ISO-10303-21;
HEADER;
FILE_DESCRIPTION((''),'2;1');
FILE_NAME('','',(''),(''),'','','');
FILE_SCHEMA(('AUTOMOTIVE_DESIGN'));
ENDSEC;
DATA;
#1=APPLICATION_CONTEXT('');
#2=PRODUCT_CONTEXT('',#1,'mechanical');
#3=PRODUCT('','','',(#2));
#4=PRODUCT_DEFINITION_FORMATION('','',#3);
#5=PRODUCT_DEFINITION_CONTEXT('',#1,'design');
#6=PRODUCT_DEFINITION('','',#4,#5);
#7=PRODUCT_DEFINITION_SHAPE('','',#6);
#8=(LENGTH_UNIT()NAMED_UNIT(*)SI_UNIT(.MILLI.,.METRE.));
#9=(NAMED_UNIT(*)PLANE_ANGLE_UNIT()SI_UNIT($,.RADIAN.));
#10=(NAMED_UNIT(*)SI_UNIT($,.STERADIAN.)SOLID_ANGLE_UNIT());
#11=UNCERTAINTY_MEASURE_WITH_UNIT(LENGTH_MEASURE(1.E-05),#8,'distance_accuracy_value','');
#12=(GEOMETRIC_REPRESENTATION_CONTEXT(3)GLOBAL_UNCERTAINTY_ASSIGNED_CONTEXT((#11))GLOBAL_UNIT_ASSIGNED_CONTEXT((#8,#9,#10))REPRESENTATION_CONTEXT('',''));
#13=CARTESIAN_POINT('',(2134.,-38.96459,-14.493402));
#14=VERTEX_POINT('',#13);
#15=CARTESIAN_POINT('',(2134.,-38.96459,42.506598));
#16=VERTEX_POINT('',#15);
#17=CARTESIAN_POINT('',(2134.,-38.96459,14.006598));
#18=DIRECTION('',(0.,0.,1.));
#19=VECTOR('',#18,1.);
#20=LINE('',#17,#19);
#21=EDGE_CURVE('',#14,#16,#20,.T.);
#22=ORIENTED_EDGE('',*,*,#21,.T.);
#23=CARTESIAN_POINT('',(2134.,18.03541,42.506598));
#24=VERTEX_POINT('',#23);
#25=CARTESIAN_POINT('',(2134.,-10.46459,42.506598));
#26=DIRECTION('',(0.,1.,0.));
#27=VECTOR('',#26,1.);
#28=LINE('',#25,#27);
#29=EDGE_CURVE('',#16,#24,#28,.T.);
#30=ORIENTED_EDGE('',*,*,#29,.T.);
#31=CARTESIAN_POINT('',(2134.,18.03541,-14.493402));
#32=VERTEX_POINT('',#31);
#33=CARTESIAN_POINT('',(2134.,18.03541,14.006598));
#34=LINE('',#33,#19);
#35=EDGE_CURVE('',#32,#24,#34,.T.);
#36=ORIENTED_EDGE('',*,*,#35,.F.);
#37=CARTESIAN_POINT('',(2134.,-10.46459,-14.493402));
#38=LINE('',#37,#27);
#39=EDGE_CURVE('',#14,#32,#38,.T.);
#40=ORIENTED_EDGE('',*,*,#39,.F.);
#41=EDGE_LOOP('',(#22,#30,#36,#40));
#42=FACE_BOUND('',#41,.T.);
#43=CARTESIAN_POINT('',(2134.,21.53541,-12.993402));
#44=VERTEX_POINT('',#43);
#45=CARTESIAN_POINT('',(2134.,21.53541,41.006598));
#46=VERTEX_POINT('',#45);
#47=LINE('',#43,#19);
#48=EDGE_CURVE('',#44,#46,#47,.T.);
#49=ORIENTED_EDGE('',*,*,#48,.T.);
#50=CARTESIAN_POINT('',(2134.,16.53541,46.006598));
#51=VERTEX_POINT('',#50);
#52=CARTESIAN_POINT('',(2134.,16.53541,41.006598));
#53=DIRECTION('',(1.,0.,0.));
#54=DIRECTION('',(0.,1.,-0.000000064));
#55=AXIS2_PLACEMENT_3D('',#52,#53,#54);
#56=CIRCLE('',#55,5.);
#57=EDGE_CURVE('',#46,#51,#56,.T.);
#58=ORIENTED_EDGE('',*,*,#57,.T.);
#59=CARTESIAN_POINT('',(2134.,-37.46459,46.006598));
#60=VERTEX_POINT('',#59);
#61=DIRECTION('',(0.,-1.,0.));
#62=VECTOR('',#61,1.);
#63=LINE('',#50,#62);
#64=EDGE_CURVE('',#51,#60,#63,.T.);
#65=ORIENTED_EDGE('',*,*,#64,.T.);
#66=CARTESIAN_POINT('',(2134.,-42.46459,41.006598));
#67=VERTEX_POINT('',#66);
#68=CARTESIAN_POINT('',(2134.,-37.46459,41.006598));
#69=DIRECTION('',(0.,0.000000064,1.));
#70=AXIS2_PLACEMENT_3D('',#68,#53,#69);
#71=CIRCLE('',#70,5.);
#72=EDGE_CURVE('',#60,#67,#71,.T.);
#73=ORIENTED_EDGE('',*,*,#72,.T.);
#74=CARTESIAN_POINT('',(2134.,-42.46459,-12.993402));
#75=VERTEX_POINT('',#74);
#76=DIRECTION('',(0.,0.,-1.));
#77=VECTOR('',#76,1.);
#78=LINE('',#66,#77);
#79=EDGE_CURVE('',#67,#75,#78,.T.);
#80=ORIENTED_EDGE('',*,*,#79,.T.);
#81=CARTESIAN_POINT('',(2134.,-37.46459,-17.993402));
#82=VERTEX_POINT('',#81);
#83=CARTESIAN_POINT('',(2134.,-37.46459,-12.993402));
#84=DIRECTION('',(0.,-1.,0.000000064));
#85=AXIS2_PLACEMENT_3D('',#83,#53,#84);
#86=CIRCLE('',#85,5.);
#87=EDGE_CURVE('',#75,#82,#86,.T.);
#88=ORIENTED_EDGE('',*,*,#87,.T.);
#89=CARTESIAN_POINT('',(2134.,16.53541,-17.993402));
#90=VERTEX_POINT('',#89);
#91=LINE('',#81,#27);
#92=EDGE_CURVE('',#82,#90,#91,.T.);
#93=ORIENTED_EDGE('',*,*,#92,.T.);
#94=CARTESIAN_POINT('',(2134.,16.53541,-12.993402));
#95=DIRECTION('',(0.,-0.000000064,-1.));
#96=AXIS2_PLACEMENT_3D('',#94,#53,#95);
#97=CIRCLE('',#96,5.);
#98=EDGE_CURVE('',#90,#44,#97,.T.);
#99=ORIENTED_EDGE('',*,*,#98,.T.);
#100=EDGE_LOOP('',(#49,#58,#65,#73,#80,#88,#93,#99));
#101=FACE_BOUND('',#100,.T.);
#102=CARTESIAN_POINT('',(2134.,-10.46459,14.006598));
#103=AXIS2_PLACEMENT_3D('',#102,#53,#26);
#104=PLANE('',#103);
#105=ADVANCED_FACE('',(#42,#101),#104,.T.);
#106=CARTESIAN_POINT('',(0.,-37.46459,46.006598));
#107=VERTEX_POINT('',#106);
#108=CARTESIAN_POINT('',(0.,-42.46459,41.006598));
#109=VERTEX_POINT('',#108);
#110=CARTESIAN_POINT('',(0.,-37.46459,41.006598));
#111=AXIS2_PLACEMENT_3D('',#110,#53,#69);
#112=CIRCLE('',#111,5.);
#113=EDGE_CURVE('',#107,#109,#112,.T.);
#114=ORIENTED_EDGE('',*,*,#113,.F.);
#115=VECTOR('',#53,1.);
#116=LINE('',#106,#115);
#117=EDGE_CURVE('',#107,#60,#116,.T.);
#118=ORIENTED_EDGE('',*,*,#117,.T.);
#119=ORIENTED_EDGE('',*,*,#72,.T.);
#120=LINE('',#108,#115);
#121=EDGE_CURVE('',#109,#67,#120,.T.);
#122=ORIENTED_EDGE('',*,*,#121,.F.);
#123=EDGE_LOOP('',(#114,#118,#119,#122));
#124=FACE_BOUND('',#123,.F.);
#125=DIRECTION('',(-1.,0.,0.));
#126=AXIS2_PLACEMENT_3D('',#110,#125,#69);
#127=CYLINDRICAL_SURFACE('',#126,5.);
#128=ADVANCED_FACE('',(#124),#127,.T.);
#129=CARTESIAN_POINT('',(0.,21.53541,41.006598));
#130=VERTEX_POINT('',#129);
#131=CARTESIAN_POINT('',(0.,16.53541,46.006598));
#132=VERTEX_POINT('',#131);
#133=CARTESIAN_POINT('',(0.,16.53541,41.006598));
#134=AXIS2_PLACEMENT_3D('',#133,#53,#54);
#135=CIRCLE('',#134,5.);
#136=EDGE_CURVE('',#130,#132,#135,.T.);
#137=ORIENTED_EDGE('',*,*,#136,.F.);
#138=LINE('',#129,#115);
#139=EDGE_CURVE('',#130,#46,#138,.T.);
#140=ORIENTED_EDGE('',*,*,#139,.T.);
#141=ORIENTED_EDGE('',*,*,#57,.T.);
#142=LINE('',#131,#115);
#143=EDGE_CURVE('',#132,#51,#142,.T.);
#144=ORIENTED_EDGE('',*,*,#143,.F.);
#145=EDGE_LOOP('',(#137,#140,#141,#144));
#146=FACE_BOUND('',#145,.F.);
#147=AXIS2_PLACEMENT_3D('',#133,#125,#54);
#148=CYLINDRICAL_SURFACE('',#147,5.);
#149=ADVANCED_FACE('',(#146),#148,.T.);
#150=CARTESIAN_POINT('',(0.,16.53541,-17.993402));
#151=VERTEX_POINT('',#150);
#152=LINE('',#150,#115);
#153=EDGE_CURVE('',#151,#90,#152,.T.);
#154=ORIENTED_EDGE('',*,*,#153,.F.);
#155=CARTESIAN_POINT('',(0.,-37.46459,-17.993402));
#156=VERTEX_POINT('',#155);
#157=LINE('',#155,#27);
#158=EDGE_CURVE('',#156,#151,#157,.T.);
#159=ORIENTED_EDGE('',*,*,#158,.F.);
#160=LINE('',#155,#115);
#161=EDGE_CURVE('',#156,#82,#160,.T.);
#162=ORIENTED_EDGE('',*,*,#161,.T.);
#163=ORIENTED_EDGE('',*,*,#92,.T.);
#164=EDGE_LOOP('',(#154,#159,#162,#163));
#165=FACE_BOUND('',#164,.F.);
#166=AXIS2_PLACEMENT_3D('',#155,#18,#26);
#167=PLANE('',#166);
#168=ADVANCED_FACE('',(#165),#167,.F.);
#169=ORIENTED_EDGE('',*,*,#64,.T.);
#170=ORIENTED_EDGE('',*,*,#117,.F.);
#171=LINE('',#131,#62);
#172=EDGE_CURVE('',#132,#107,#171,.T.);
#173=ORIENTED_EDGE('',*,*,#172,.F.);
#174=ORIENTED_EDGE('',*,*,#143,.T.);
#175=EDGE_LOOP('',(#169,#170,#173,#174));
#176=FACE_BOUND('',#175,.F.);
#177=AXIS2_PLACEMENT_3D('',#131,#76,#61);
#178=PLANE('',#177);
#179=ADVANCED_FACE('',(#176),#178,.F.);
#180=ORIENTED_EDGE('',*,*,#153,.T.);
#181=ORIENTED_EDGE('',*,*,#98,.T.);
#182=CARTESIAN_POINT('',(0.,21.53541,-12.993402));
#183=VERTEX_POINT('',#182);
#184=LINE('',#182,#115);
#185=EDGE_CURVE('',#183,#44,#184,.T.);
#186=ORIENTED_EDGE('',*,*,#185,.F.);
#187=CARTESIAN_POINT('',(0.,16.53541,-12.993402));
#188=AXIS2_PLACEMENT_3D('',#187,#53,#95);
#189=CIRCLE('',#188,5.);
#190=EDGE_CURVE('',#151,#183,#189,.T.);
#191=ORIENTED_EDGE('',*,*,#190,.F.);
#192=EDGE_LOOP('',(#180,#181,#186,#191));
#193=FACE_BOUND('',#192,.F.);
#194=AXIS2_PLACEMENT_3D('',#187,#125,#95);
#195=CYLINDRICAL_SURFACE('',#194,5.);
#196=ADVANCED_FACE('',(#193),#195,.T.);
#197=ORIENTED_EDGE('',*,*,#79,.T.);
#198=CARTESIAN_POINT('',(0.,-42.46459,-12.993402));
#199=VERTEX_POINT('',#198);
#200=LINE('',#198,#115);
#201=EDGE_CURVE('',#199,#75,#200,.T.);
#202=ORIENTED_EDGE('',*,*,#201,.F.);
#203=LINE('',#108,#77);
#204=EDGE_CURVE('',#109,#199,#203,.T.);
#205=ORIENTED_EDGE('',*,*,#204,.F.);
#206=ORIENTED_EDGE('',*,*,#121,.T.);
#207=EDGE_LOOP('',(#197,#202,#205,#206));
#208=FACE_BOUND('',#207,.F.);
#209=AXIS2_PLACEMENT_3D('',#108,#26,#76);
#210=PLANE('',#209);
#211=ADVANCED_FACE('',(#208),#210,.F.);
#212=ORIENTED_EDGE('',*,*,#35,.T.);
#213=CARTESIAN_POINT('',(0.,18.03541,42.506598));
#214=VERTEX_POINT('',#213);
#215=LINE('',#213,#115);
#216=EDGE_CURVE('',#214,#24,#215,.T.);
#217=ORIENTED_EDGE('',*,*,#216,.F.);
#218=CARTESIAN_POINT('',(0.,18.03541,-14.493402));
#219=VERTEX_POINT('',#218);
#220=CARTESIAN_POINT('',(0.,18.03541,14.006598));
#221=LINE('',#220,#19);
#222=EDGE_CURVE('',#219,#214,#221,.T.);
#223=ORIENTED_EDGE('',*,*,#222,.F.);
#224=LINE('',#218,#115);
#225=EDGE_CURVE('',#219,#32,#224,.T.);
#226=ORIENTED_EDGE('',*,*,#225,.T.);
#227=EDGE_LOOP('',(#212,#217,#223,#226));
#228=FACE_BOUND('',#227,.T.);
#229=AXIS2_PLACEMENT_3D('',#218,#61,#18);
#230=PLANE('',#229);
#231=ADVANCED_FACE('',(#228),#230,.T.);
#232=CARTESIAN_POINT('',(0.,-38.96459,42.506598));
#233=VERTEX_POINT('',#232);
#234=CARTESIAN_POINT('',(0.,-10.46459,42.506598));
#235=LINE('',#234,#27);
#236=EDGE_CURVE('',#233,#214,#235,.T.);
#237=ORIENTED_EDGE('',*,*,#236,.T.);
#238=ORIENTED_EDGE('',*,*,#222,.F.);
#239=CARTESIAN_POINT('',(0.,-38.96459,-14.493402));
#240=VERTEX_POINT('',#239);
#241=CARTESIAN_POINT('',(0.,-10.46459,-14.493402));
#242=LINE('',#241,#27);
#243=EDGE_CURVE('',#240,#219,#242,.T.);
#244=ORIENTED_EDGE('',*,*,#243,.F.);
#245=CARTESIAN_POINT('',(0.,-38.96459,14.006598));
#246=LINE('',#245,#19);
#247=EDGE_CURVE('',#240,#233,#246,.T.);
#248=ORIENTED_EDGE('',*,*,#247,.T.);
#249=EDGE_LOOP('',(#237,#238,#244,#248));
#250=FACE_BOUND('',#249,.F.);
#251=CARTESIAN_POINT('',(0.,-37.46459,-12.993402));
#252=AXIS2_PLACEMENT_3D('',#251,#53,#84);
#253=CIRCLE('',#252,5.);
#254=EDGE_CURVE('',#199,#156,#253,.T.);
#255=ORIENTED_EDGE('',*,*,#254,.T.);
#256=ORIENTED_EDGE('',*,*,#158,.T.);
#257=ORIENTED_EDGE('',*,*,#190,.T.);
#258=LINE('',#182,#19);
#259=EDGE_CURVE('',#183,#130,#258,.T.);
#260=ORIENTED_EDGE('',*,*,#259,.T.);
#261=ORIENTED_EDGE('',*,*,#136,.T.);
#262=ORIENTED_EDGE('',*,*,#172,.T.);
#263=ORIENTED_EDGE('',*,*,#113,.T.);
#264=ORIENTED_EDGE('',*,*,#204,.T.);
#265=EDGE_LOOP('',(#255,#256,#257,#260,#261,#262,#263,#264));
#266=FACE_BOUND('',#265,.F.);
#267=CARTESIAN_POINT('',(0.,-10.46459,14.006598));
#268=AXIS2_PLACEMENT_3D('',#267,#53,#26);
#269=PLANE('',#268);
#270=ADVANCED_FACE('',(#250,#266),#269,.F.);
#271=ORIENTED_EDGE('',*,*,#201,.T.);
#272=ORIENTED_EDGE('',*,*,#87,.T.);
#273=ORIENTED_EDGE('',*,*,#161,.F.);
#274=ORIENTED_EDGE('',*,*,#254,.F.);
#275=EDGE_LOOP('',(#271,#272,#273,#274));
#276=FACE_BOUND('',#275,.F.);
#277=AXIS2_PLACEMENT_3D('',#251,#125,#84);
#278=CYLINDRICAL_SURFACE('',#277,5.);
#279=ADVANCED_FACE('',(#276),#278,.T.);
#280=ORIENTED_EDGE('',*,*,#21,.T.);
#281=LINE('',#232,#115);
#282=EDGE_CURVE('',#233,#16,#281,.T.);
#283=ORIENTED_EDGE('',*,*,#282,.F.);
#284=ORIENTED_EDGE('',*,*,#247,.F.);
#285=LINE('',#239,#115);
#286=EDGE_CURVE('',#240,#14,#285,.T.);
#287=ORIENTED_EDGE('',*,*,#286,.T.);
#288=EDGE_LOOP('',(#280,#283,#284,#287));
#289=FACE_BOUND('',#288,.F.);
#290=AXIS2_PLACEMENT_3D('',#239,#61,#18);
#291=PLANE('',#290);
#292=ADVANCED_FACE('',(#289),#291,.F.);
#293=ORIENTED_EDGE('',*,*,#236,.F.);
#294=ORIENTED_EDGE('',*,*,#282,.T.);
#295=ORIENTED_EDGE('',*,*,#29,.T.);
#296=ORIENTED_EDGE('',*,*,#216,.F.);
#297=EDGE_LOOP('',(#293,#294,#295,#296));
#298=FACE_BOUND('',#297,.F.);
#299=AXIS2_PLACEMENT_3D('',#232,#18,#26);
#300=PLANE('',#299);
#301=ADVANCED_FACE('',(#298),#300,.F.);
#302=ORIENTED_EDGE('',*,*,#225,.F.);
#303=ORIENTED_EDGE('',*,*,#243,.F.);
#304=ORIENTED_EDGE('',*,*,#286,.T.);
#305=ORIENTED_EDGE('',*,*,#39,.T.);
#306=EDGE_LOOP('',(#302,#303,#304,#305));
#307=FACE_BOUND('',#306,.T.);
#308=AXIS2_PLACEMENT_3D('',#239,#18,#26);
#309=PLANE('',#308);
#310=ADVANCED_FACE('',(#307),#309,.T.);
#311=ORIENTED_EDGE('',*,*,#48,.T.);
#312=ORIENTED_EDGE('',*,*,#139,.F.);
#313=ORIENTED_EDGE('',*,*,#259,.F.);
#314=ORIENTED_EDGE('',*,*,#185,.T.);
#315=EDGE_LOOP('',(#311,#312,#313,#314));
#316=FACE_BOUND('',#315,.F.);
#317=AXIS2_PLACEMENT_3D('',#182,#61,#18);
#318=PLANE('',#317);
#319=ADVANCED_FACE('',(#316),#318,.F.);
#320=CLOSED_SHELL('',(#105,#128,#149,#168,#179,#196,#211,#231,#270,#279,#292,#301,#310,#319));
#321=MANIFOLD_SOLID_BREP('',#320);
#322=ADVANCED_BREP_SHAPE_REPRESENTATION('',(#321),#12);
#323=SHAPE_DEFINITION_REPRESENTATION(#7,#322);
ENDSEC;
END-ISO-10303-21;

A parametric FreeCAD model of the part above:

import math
import FreeCAD as App
import Part
import Sketcher

V = App.Vector

doc = App.newDocument("Part")
body = doc.addObject("PartDesign::Body", "Body")

# Sketch on YZ plane
sketch1 = body.newObject("Sketcher::SketchObject", "Sketch")
sketch1.AttachmentSupport = (doc.getObject("YZ_Plane"), [""])
sketch1.MapMode = "FlatFace"
sketch1.addGeometry([
    Part.LineSegment(V(16.53541, 46.006598, 0), V(-37.46459, 46.006598, 0)),  # 0
    Part.ArcOfCircle(Part.Circle(V(-37.46459, 41.006598, 0), V(0, 0, 1), 5), math.radians(89.999996), math.radians(180.000004)),  # 1
    Part.LineSegment(V(-42.46459, 41.006598, 0), V(-42.46459, -12.993402, 0)),  # 2
    Part.ArcOfCircle(Part.Circle(V(-37.46459, -12.993402, 0), V(0, 0, 1), 5), math.radians(179.999996), math.radians(270.000004)),  # 3
    Part.LineSegment(V(-37.46459, -17.993402, 0), V(16.53541, -17.993402, 0)),  # 4
    Part.ArcOfCircle(Part.Circle(V(16.53541, -12.993402, 0), V(0, 0, 1), 5), math.radians(-90.000004), math.radians(0.000004)),  # 5
    Part.LineSegment(V(21.53541, -12.993402, 0), V(21.53541, 41.006598, 0)),  # 6
    Part.ArcOfCircle(Part.Circle(V(16.53541, 41.006598, 0), V(0, 0, 1), 5), math.radians(-0.000004), math.radians(90.000004)),  # 7
    Part.LineSegment(V(18.03541, -14.493402, 0), V(-38.96459, -14.493402, 0)),  # 8
    Part.LineSegment(V(-38.96459, -14.493402, 0), V(-38.96459, 42.506598, 0)),  # 9
    Part.LineSegment(V(-38.96459, 42.506598, 0), V(18.03541, 42.506598, 0)),  # 10
    Part.LineSegment(V(18.03541, 42.506598, 0), V(18.03541, -14.493402, 0)),  # 11
], False)
sketch1.addConstraint([
    Sketcher.Constraint("Tangent", 0, 2, 1, 1),
    Sketcher.Constraint("Tangent", 1, 2, 2, 1),
    Sketcher.Constraint("Tangent", 2, 2, 3, 1),
    Sketcher.Constraint("Tangent", 3, 2, 4, 1),
    Sketcher.Constraint("Tangent", 4, 2, 5, 1),
    Sketcher.Constraint("Tangent", 5, 2, 6, 1),
    Sketcher.Constraint("Tangent", 6, 2, 7, 1),
    Sketcher.Constraint("Tangent", 7, 2, 0, 1),
    Sketcher.Constraint("Coincident", 8, 2, 9, 1),
    Sketcher.Constraint("Coincident", 9, 2, 10, 1),
    Sketcher.Constraint("Coincident", 10, 2, 11, 1),
    Sketcher.Constraint("Coincident", 11, 2, 8, 1),
    Sketcher.Constraint("Horizontal", 0),
    Sketcher.Constraint("Vertical", 2),
    Sketcher.Constraint("Horizontal", 4),
    Sketcher.Constraint("Vertical", 6),
    Sketcher.Constraint("Horizontal", 8),
    Sketcher.Constraint("Vertical", 9),
    Sketcher.Constraint("Horizontal", 10),
    Sketcher.Constraint("Vertical", 11),
    Sketcher.Constraint("Equal", 1, 3),
    Sketcher.Constraint("Equal", 3, 5),
    Sketcher.Constraint("Equal", 5, 7),
    Sketcher.Constraint("Equal", 4, 2),
    Sketcher.Constraint("Equal", 10, 9),
    Sketcher.Constraint("Radius", 1, 5.0),
    Sketcher.Constraint("DistanceX", 0, 2, 0, 1, 54.0),
    Sketcher.Constraint("DistanceX", 8, 2, 8, 1, 57.0),
    Sketcher.Constraint("DistanceX", 8, 2, 3, 3, 1.5),
    Sketcher.Constraint("DistanceY", 8, 2, 3, 3, 1.5),
    Sketcher.Constraint("DistanceY", -1, 1, 1, 3, 41.006598),
    Sketcher.Constraint("DistanceX", 1, 3, -1, 1, 37.46459),
])
pad1 = body.newObject("PartDesign::Pad", "Pad")
pad1.Profile = sketch1
pad1.Length = 2134

doc.recompute()
